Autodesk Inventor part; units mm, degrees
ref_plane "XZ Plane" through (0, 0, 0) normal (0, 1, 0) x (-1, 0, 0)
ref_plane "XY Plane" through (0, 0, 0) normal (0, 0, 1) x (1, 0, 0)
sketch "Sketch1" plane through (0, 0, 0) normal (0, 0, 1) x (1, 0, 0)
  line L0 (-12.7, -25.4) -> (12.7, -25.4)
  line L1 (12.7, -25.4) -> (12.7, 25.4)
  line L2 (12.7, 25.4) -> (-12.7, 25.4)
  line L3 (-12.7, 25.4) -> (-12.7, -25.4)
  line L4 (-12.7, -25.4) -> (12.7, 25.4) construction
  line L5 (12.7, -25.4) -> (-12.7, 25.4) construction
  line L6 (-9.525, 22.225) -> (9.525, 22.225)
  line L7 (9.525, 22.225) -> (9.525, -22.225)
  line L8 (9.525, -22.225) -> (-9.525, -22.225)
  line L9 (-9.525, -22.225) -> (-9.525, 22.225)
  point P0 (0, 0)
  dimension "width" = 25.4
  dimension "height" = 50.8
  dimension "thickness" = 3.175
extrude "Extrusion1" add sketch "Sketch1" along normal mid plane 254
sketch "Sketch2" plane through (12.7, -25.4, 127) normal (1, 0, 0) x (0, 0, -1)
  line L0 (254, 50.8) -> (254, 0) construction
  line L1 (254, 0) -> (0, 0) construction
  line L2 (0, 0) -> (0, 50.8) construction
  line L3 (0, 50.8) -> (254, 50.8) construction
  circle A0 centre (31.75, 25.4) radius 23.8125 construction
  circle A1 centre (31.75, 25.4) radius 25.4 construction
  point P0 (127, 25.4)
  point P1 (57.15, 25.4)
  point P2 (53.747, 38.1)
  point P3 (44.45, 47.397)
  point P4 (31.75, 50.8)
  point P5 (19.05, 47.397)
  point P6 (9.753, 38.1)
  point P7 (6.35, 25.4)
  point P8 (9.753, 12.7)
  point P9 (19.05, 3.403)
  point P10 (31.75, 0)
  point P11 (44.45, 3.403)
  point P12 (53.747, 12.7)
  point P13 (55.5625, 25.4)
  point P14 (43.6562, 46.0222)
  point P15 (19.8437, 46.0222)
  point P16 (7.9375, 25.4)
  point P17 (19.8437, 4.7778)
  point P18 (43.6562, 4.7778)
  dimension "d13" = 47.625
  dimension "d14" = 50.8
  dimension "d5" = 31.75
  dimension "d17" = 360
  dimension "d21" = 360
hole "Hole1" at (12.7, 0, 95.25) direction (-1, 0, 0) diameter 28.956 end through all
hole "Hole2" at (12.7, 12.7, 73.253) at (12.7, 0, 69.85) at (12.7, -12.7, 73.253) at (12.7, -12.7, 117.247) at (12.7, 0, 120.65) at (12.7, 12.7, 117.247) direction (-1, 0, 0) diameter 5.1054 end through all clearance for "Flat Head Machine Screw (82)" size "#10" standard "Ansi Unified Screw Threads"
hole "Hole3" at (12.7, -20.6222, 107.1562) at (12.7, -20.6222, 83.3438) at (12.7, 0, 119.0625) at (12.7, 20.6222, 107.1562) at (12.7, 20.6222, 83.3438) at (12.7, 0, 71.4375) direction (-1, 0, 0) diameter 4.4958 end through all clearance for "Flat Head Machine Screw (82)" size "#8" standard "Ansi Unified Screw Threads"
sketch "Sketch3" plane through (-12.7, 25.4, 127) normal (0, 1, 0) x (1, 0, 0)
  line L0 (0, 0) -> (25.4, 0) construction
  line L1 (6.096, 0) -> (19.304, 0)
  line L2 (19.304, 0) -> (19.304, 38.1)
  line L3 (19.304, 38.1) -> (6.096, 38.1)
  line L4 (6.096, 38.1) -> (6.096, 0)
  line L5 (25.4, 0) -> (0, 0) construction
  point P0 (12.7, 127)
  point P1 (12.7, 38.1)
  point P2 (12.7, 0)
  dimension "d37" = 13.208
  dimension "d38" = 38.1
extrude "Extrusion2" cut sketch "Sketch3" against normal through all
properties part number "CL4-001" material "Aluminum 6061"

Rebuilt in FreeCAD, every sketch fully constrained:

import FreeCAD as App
import Part
import Sketcher
from FreeCAD import Vector
Q = App.Units.Quantity


def add_polygon(sketch, points):
    """Adds a closed chain of lines whose ends are joined by coincident constraints."""
    first, n = sketch.GeometryCount, len(points)
    for a, b in zip(points, points[1:] + points[:1]):
        sketch.addGeometry(Part.LineSegment(App.Vector(*a, 0), App.Vector(*b, 0)), False)
    for i in range(n):
        sketch.addConstraint(Sketcher.Constraint("Coincident", first + i, 2, first + (i + 1) % n, 1))

doc = App.newDocument("Part")
body = doc.addObject("PartDesign::Body", "Body")

# Sketch on XY plane
sketch1 = body.newObject("Sketcher::SketchObject", "Sketch")
sketch1.AttachmentSupport = (doc.getObject("XY_Plane"), [""])
sketch1.MapMode = "FlatFace"
add_polygon(sketch1, [(-13, 25), (-13, -25), (13, -25), (13, 25)])  # lines 0-3
add_polygon(sketch1, [(-10, -22), (-10, 22), (10, 22), (10, -22)])  # lines 4-7
sketch1.addConstraint([
    Sketcher.Constraint("Vertical", 0),
    Sketcher.Constraint("Horizontal", 1),
    Sketcher.Constraint("Vertical", 2),
    Sketcher.Constraint("Horizontal", 3),
    Sketcher.Constraint("Vertical", 4),
    Sketcher.Constraint("Horizontal", 5),
    Sketcher.Constraint("Vertical", 6),
    Sketcher.Constraint("Horizontal", 7),
    Sketcher.Constraint("Symmetric", 0, 2, 2, 2, -1, 1),
    Sketcher.Constraint("Symmetric", 4, 2, 6, 2, -1, 1),
    Sketcher.Constraint("DistanceX", 1, 1, 1, 2, Q("1 in")),
    Sketcher.Constraint("DistanceY", 0, 2, 0, 1, Q("2 in")),
    Sketcher.Constraint("DistanceX", 3, 2, 4, 2, Q("0.125 in")),
    Sketcher.Constraint("DistanceY", 4, 2, 3, 2, Q("0.125 in")),
])
pad1 = body.newObject("PartDesign::Pad", "Pad")
pad1.Profile = sketch1
pad1.Length = Q("10 in")
pad1.Midplane = True

# Sketch on YZ plane
sketch2 = body.newObject("Sketcher::SketchObject", "Sketch001")
sketch2.AttachmentSupport = (doc.getObject("YZ_Plane"), [""])
sketch2.MapMode = "FlatFace"
sketch2.AttachmentOffset = App.Placement(Vector(0, 0, 0.5 * 25.4), App.Rotation())
sketch2.addGeometry(Part.Circle(Vector(0, 95, 0), Vector(0, 0, 1), 14), False)
sketch2.addConstraint([
    Sketcher.Constraint("PointOnObject", 0, 3, -2),
    Sketcher.Constraint("Diameter", 0, Q("1.14 in")),
    Sketcher.Constraint("DistanceY", -1, 1, 0, 3, Q("3.75 in")),
])
doc.recompute()
hole = body.newObject("PartDesign::Hole", "Hole")
hole.Profile = sketch2
hole.ThreadType = "None"
hole.Diameter = Q("1.14 in")
hole.DepthType = "ThroughAll"

# Sketch on YZ plane
sketch3 = body.newObject("Sketcher::SketchObject", "Sketch002")
sketch3.AttachmentSupport = (doc.getObject("YZ_Plane"), [""])
sketch3.MapMode = "FlatFace"
sketch3.AttachmentOffset = App.Placement(Vector(0, 0, 0.5 * 25.4), App.Rotation())
sketch3.addGeometry([
    Part.Circle(Vector(12.7, 73.3, 0), Vector(0, 0, 1), 2.6),  # 0
    Part.Circle(Vector(0, 69.8, 0), Vector(0, 0, 1), 2.6),  # 1
    Part.Circle(Vector(-12.7, 73.3, 0), Vector(0, 0, 1), 2.6),  # 2
    Part.Circle(Vector(-12.7, 117.2, 0), Vector(0, 0, 1), 2.6),  # 3
    Part.Circle(Vector(0, 120.7, 0), Vector(0, 0, 1), 2.6),  # 4
    Part.Circle(Vector(12.7, 117.2, 0), Vector(0, 0, 1), 2.6),  # 5
], False)
sketch3.addConstraint([
    Sketcher.Constraint("Equal", 0, 1),
    Sketcher.Constraint("Equal", 1, 2),
    Sketcher.Constraint("Equal", 2, 3),
    Sketcher.Constraint("Equal", 3, 4),
    Sketcher.Constraint("Equal", 4, 5),
    Sketcher.Constraint("Symmetric", 0, 3, 2, 3, -2),
    Sketcher.Constraint("Symmetric", 3, 3, 5, 3, -2),
    Sketcher.Constraint("PointOnObject", 1, 3, -2),
    Sketcher.Constraint("PointOnObject", 4, 3, -2),
    Sketcher.Constraint("Vertical", 2, 3, 3, 3),
    Sketcher.Constraint("Diameter", 0, Q("0.201 in")),
    Sketcher.Constraint("DistanceX", 2, 3, 0, 3, Q("1 in")),
    Sketcher.Constraint("DistanceY", 1, 3, 4, 3, Q("2 in")),
    Sketcher.Constraint("DistanceY", -1, 1, 1, 3, Q("2.75 in")),
    Sketcher.Constraint("DistanceY", -1, 1, 0, 3, Q("73.253 mm")),
    Sketcher.Constraint("DistanceY", -1, 1, 3, 3, Q("117.247 mm")),
])
doc.recompute()
hole2 = body.newObject("PartDesign::Hole", "Hole001")
hole2.Profile = sketch3
hole2.ThreadType = "None"
hole2.Diameter = Q("0.201 in")
hole2.DepthType = "ThroughAll"

# Sketch on YZ plane
sketch4 = body.newObject("Sketcher::SketchObject", "Sketch003")
sketch4.AttachmentSupport = (doc.getObject("YZ_Plane"), [""])
sketch4.MapMode = "FlatFace"
sketch4.AttachmentOffset = App.Placement(Vector(0, 0, 0.5 * 25.4), App.Rotation())
sketch4.addGeometry([
    Part.Circle(Vector(-20.6, 107.2, 0), Vector(0, 0, 1), 2.2),  # 0
    Part.Circle(Vector(-20.6, 83.3, 0), Vector(0, 0, 1), 2.2),  # 1
    Part.Circle(Vector(0, 119.1, 0), Vector(0, 0, 1), 2.2),  # 2
    Part.Circle(Vector(20.6, 107.2, 0), Vector(0, 0, 1), 2.2),  # 3
    Part.Circle(Vector(20.6, 83.3, 0), Vector(0, 0, 1), 2.2),  # 4
    Part.Circle(Vector(0, 71.4, 0), Vector(0, 0, 1), 2.2),  # 5
], False)
sketch4.addConstraint([
    Sketcher.Constraint("Equal", 0, 1),
    Sketcher.Constraint("Equal", 1, 2),
    Sketcher.Constraint("Equal", 2, 3),
    Sketcher.Constraint("Equal", 3, 4),
    Sketcher.Constraint("Equal", 4, 5),
    Sketcher.Constraint("Symmetric", 0, 3, 3, 3, -2),
    Sketcher.Constraint("Symmetric", 1, 3, 4, 3, -2),
    Sketcher.Constraint("PointOnObject", 2, 3, -2),
    Sketcher.Constraint("PointOnObject", 5, 3, -2),
    Sketcher.Constraint("Vertical", 0, 3, 1, 3),
    Sketcher.Constraint("Diameter", 0, Q("0.177 in")),
    Sketcher.Constraint("DistanceY", -1, 1, 0, 3, Q("4.218748 in")),
    Sketcher.Constraint("DistanceY", -1, 1, 1, 3, Q("3.281252 in")),
    Sketcher.Constraint("DistanceY", -1, 1, 2, 3, Q("4.6875 in")),
    Sketcher.Constraint("DistanceY", -1, 1, 5, 3, Q("2.8125 in")),
    Sketcher.Constraint("DistanceX", 0, 3, -1, 1, Q("0.8119 in")),
])
doc.recompute()
hole3 = body.newObject("PartDesign::Hole", "Hole002")
hole3.Profile = sketch4
hole3.ThreadType = "None"
hole3.Diameter = Q("0.177 in")
hole3.DepthType = "ThroughAll"

# Sketch on XZ plane
sketch5 = body.newObject("Sketcher::SketchObject", "Sketch004")
sketch5.AttachmentSupport = (doc.getObject("XZ_Plane"), [""])
sketch5.MapMode = "FlatFace"
sketch5.AttachmentOffset = App.Placement(Vector(0, 0, -1 * 25.4), App.Rotation())
add_polygon(sketch5, [(-7, 89), (-7, 127), (7, 127), (7, 89)])  # lines 0-3
sketch5.addConstraint([
    Sketcher.Constraint("Vertical", 0),
    Sketcher.Constraint("Horizontal", 1),
    Sketcher.Constraint("Vertical", 2),
    Sketcher.Constraint("Horizontal", 3),
    Sketcher.Constraint("DistanceY", 0, 1, 0, 2, Q("1.5 in")),
    Sketcher.Constraint("DistanceX", 1, 1, 1, 2, Q("0.52 in")),
    Sketcher.Constraint("DistanceY", -1, 1, 0, 2, Q("5 in")),
    Sketcher.Constraint("DistanceX", 0, 2, -1, 1, Q("0.26 in")),
])
pocket1 = body.newObject("PartDesign::Pocket", "Pocket")
pocket1.Profile = sketch5
pocket1.Type = "ThroughAll"
pocket1.Reversed = True

doc.recompute()
